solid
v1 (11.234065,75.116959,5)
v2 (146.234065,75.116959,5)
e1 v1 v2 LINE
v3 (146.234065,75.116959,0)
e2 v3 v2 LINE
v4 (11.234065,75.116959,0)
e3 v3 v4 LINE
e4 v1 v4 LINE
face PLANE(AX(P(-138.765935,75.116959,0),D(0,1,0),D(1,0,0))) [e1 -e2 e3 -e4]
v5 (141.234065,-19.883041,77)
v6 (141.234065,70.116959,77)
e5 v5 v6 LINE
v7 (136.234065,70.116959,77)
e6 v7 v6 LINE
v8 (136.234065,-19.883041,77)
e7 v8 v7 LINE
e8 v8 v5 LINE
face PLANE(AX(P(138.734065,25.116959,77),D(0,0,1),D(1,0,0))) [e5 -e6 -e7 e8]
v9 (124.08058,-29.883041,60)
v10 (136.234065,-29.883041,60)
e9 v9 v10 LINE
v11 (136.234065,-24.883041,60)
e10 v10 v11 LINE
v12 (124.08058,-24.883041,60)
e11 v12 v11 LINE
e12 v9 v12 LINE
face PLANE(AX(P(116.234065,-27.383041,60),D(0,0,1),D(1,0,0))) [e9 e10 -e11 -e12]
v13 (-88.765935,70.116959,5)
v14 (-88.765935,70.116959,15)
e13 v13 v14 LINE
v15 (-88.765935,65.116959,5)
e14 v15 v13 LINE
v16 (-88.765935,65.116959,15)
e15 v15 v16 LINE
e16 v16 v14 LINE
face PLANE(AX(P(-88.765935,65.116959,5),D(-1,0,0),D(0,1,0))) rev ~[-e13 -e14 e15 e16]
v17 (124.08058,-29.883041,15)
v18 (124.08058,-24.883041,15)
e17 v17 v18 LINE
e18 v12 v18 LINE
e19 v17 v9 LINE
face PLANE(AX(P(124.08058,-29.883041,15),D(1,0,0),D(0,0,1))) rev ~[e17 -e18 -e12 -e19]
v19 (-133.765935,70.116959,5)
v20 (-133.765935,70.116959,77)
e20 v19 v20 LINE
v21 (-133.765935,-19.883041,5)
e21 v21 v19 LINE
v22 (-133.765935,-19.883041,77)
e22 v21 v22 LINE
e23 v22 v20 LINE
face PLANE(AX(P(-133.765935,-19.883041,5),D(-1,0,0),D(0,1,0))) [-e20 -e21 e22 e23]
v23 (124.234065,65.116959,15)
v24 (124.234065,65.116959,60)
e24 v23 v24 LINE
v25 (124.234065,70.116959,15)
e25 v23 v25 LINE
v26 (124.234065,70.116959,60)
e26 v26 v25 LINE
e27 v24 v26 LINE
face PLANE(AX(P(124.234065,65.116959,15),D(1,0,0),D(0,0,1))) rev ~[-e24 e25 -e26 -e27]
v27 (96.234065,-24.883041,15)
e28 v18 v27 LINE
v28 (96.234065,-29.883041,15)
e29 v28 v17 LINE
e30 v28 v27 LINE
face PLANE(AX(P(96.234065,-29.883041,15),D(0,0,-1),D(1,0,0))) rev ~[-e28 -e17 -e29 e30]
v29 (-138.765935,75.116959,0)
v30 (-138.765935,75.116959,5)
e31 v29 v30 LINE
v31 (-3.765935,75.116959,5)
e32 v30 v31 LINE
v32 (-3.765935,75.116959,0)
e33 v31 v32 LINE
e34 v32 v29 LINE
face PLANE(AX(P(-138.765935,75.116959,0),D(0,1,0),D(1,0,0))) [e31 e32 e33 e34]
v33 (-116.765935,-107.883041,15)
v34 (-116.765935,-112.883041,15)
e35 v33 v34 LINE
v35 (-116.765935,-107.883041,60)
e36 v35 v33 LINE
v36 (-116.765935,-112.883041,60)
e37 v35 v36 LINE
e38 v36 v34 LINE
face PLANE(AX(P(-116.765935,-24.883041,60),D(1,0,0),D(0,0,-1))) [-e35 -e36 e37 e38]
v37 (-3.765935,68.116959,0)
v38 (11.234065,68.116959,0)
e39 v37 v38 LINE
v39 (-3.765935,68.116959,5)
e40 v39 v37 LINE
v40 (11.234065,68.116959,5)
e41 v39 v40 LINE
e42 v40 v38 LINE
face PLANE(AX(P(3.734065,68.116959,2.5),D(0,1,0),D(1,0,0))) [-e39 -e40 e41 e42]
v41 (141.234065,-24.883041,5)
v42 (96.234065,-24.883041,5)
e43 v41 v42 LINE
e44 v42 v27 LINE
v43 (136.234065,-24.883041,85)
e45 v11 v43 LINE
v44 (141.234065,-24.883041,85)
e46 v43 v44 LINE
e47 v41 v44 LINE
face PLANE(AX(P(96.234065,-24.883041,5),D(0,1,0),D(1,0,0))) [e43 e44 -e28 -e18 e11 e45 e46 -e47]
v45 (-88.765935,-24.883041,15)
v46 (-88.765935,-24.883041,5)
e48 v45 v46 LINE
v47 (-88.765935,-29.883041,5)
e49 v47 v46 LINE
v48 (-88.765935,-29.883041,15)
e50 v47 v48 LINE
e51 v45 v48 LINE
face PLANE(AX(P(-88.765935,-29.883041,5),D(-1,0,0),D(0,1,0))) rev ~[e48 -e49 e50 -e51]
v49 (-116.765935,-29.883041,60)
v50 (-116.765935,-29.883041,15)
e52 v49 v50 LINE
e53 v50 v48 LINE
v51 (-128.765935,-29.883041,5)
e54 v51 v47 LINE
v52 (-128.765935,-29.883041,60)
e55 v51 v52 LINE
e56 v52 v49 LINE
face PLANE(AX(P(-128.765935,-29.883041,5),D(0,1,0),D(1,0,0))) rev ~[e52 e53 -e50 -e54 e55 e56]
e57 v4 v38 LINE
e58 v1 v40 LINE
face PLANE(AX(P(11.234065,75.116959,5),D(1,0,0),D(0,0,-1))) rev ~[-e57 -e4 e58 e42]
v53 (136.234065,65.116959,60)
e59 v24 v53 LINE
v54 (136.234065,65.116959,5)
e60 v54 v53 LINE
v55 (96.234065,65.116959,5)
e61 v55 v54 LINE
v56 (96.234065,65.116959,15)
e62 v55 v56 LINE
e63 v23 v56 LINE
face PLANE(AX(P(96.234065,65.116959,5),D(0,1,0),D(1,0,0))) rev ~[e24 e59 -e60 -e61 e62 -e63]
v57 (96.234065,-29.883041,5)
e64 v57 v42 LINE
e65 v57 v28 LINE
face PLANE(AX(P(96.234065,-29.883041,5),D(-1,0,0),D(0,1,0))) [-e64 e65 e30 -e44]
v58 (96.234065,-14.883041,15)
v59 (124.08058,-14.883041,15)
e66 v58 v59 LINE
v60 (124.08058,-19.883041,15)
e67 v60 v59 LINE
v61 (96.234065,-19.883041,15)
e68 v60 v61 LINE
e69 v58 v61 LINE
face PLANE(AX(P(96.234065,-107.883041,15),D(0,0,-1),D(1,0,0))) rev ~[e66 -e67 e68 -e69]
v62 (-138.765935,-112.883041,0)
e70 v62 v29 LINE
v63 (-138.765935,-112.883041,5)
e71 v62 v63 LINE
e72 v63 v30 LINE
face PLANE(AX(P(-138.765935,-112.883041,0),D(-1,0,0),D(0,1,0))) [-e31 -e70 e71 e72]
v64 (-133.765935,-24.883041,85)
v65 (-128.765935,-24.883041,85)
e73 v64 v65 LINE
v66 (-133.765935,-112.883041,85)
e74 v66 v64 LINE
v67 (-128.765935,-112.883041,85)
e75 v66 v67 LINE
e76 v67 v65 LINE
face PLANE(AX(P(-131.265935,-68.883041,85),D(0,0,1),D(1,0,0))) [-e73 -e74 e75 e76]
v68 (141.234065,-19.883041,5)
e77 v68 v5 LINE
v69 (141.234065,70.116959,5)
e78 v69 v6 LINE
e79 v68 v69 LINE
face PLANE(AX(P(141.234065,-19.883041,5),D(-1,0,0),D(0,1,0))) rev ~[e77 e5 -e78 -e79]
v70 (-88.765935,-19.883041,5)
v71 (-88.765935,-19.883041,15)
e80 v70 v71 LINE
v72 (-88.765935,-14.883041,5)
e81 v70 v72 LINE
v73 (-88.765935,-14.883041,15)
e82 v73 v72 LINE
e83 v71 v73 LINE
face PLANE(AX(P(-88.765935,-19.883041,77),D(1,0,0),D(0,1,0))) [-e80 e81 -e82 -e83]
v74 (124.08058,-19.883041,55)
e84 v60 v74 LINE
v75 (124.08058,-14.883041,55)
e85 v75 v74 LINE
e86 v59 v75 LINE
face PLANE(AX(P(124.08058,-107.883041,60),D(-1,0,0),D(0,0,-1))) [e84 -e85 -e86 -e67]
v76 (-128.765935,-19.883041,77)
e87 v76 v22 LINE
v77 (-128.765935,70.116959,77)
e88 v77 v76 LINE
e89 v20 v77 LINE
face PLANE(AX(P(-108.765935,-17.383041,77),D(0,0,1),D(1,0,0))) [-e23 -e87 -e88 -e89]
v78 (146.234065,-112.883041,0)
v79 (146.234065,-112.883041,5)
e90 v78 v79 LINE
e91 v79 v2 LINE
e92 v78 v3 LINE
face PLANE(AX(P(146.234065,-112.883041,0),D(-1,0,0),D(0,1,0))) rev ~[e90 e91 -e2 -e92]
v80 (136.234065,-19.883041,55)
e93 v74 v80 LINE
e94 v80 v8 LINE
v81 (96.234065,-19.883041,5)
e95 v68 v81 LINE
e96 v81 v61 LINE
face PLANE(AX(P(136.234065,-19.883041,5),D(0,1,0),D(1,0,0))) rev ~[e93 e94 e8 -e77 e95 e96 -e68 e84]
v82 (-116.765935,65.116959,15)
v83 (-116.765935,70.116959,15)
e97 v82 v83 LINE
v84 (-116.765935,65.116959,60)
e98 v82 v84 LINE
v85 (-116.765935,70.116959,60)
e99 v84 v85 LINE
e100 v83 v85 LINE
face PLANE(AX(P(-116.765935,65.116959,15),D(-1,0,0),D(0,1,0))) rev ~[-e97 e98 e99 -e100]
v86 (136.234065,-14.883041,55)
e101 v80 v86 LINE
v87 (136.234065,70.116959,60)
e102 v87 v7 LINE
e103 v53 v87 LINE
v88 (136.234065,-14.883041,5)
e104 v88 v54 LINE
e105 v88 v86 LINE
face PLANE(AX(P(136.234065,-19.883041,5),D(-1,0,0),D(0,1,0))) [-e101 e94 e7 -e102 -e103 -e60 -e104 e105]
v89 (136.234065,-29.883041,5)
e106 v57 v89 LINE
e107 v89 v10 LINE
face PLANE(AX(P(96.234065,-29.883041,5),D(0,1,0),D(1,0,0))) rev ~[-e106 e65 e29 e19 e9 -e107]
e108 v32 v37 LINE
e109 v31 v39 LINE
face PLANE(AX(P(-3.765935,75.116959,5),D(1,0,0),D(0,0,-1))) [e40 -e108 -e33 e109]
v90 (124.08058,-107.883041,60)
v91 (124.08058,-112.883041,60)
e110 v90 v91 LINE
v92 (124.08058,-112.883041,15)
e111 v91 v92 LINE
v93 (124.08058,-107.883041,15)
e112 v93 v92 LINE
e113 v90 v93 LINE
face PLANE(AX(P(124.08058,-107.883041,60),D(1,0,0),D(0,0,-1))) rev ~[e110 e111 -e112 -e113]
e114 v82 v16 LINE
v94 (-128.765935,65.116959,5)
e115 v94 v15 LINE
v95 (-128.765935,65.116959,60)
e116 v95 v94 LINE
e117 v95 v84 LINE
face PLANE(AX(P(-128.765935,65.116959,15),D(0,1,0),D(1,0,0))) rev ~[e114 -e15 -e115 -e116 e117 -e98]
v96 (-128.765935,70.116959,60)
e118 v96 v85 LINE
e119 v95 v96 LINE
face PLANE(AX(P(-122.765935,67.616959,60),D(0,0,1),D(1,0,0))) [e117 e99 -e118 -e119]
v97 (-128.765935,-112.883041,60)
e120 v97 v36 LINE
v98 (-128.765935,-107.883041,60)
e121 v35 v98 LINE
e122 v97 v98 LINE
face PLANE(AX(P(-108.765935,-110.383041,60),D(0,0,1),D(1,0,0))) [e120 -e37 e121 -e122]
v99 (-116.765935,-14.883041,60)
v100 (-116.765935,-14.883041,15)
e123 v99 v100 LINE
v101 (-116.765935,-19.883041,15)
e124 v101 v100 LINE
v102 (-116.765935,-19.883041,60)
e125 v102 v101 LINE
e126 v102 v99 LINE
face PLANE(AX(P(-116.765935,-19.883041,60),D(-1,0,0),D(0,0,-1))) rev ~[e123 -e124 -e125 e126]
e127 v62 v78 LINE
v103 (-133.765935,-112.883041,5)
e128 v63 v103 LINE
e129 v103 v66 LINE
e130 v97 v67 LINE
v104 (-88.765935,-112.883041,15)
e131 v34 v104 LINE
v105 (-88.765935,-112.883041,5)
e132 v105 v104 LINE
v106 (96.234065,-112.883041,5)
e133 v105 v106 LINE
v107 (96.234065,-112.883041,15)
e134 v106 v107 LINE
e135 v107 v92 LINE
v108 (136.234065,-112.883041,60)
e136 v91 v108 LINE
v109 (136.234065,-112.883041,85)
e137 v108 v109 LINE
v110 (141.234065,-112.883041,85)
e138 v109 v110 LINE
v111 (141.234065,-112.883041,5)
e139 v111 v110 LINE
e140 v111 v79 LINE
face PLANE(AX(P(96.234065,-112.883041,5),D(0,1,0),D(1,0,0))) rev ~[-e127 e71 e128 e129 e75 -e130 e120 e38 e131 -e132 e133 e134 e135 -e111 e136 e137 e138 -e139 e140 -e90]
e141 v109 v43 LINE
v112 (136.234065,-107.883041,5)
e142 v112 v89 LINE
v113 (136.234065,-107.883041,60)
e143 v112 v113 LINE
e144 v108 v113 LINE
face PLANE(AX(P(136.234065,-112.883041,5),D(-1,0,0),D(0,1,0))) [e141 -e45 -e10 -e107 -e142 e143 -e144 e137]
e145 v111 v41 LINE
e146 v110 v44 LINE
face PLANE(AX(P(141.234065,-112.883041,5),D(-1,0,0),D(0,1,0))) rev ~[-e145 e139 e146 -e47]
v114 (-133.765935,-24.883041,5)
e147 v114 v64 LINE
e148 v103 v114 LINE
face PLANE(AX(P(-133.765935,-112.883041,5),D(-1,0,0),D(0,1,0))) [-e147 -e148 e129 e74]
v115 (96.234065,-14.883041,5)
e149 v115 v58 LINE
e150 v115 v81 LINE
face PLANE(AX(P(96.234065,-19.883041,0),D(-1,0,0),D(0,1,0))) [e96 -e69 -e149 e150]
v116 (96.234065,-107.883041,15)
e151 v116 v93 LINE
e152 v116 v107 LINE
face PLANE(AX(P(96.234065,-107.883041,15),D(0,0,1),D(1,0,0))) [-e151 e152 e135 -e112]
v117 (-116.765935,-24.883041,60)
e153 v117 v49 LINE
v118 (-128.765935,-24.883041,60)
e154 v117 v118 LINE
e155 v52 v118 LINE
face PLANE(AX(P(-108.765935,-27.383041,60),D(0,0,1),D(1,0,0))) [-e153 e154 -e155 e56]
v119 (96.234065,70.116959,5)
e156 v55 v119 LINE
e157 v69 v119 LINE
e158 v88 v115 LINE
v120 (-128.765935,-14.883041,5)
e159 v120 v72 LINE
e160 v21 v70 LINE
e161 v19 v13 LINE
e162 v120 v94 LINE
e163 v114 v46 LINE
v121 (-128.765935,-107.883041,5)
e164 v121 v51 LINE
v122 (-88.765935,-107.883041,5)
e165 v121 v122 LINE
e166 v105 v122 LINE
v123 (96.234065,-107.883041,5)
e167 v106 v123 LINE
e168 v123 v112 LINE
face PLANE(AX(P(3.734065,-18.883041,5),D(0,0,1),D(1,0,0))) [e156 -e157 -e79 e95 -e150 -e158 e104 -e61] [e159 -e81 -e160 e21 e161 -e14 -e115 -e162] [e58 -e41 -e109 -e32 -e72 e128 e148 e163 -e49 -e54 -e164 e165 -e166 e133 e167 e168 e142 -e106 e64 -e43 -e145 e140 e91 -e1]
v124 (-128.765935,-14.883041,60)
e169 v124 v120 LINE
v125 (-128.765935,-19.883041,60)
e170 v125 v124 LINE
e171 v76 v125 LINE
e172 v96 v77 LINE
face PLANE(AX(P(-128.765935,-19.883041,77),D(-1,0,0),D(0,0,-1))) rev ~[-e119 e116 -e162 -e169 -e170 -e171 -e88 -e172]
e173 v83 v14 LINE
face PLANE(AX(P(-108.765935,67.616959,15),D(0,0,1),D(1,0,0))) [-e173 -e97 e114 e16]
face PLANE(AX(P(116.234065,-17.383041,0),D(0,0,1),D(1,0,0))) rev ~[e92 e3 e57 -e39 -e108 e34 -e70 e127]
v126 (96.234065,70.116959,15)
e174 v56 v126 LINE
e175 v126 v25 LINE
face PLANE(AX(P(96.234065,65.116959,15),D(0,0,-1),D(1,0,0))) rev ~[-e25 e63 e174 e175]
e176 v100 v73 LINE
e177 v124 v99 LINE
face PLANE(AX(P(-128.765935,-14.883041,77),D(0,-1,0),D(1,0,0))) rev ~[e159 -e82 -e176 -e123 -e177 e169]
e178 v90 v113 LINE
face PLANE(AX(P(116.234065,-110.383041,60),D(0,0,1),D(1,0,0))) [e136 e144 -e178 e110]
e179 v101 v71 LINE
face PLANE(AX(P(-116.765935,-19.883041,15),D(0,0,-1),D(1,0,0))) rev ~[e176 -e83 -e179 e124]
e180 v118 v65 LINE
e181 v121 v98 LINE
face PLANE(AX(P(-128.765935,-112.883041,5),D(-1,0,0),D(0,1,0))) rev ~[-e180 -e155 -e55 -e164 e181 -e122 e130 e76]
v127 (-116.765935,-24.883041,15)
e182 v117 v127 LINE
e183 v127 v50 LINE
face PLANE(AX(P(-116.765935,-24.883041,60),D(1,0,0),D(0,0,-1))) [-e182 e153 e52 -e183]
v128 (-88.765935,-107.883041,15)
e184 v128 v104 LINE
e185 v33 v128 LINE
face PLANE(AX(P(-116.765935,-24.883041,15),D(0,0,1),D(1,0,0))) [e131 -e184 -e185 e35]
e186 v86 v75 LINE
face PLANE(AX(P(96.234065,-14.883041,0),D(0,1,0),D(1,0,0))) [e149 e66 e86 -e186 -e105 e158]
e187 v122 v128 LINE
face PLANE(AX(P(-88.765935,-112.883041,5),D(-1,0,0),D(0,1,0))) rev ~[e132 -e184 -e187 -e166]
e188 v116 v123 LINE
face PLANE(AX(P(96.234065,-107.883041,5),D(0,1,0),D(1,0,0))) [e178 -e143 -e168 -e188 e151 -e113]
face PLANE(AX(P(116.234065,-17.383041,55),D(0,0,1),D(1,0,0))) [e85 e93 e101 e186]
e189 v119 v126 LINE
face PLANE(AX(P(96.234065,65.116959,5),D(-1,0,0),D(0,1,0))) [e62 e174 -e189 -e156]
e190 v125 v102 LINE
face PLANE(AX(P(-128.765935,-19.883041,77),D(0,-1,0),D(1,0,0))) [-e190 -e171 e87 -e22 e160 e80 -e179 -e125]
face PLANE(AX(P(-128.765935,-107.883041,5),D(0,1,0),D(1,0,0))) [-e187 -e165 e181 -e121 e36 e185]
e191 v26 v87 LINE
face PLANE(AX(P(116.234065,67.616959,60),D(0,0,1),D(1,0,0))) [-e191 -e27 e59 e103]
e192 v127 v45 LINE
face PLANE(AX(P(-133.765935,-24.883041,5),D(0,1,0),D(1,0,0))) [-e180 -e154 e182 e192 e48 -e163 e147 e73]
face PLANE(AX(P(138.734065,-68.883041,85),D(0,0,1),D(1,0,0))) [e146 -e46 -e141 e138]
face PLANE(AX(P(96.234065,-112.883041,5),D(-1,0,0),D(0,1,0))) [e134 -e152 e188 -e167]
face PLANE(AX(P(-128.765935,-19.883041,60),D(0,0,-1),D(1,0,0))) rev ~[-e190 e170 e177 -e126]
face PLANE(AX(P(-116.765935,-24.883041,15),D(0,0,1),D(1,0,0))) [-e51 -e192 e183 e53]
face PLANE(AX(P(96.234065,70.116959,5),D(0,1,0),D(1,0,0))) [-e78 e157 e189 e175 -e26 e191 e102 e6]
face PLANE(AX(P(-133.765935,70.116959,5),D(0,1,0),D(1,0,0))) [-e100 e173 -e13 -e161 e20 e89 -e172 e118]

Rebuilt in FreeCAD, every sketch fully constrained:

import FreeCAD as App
import Part
import Sketcher

V = App.Vector


def add_polygon(sketch, points):
    """Adds a closed chain of lines whose ends are joined by coincident constraints."""
    first, n = sketch.GeometryCount, len(points)
    for a, b in zip(points, points[1:] + points[:1]):
        sketch.addGeometry(Part.LineSegment(App.Vector(*a, 0), App.Vector(*b, 0)), False)
    for i in range(n):
        sketch.addConstraint(Sketcher.Constraint("Coincident", first + i, 2, first + (i + 1) % n, 1))

doc = App.newDocument("Part")
body = doc.addObject("PartDesign::Body", "Body")

sketch1 = doc.addObject("Sketcher::SketchObject", "Sketch")
body.addObject(sketch1)
sketch1.AttachmentSupport = (doc.XY_Plane, [""])
sketch1.MapMode = "FlatFace"
add_polygon(sketch1, [(-139, 75), (-139, -113), (146, -113), (146, 75)])
sketch1.addConstraint(Sketcher.Constraint("Vertical", 0))
sketch1.addConstraint(Sketcher.Constraint("Horizontal", 1))
sketch1.addConstraint(Sketcher.Constraint("Vertical", 2))
sketch1.addConstraint(Sketcher.Constraint("Horizontal", 3))
sketch1.addConstraint(Sketcher.Constraint("DistanceX", 1, 1, 1, 2, 285.0))
sketch1.addConstraint(Sketcher.Constraint("DistanceY", 0, 2, 0, 1, 188.0))
sketch1.addConstraint(Sketcher.Constraint("DistanceY", 0, 2, -1, 1, 112.883041))
sketch1.addConstraint(Sketcher.Constraint("DistanceX", 0, 2, -1, 1, 138.765935))
pad1 = doc.addObject("PartDesign::Pad", "Pad")
body.addObject(pad1)
pad1.Profile = sketch1
pad1.Length = 5

sketch2 = doc.addObject("Sketcher::SketchObject", "Sketch001")
body.addObject(sketch2)
sketch2.AttachmentSupport = (doc.XY_Plane, [""])
sketch2.MapMode = "FlatFace"
sketch2.AttachmentOffset = App.Placement(V(0, 0, 5), App.Rotation())
add_polygon(sketch2, [(-134, 70), (-134, -20), (-129, -20), (-129, 70)])
sketch2.addConstraint(Sketcher.Constraint("Vertical", 0))
sketch2.addConstraint(Sketcher.Constraint("Horizontal", 1))
sketch2.addConstraint(Sketcher.Constraint("Vertical", 2))
sketch2.addConstraint(Sketcher.Constraint("Horizontal", 3))
sketch2.addConstraint(Sketcher.Constraint("DistanceX", 1, 1, 1, 2, 5.0))
sketch2.addConstraint(Sketcher.Constraint("DistanceY", 0, 2, 0, 1, 90.0))
sketch2.addConstraint(Sketcher.Constraint("DistanceY", 0, 2, -1, 1, 19.883041))
sketch2.addConstraint(Sketcher.Constraint("DistanceX", 0, 2, -1, 1, 133.765935))
pad2 = doc.addObject("PartDesign::Pad", "Pad001")
body.addObject(pad2)
pad2.Profile = sketch2
pad2.Length = 72

sketch3 = doc.addObject("Sketcher::SketchObject", "Sketch002")
body.addObject(sketch3)
sketch3.AttachmentSupport = (doc.XY_Plane, [""])
sketch3.MapMode = "FlatFace"
sketch3.AttachmentOffset = App.Placement(V(0, 0, 5), App.Rotation())
add_polygon(sketch3, [(-129, 70), (-129, 65), (-89, 65), (-89, 70)])
sketch3.addConstraint(Sketcher.Constraint("Vertical", 0))
sketch3.addConstraint(Sketcher.Constraint("Horizontal", 1))
sketch3.addConstraint(Sketcher.Constraint("Vertical", 2))
sketch3.addConstraint(Sketcher.Constraint("Horizontal", 3))
sketch3.addConstraint(Sketcher.Constraint("DistanceX", 1, 1, 1, 2, 40.0))
sketch3.addConstraint(Sketcher.Constraint("DistanceY", 0, 2, 0, 1, 5.0))
sketch3.addConstraint(Sketcher.Constraint("DistanceY", -1, 1, 0, 2, 65.116959))
sketch3.addConstraint(Sketcher.Constraint("DistanceX", 0, 2, -1, 1, 128.765935))
pad3 = doc.addObject("PartDesign::Pad", "Pad002")
body.addObject(pad3)
pad3.Profile = sketch3
pad3.Length = 10

sketch4 = doc.addObject("Sketcher::SketchObject", "Sketch003")
body.addObject(sketch4)
sketch4.AttachmentSupport = (doc.XY_Plane, [""])
sketch4.MapMode = "FlatFace"
sketch4.AttachmentOffset = App.Placement(V(0, 0, 15), App.Rotation())
add_polygon(sketch4, [(-129, 70), (-129, 65), (-117, 65), (-117, 70)])
sketch4.addConstraint(Sketcher.Constraint("Vertical", 0))
sketch4.addConstraint(Sketcher.Constraint("Horizontal", 1))
sketch4.addConstraint(Sketcher.Constraint("Vertical", 2))
sketch4.addConstraint(Sketcher.Constraint("Horizontal", 3))
sketch4.addConstraint(Sketcher.Constraint("DistanceX", 1, 1, 1, 2, 12.0))
sketch4.addConstraint(Sketcher.Constraint("DistanceY", 0, 2, 0, 1, 5.0))
sketch4.addConstraint(Sketcher.Constraint("DistanceY", -1, 1, 0, 2, 65.116959))
sketch4.addConstraint(Sketcher.Constraint("DistanceX", 0, 2, -1, 1, 128.765935))
pad4 = doc.addObject("PartDesign::Pad", "Pad003")
body.addObject(pad4)
pad4.Profile = sketch4
pad4.Length = 45

sketch5 = doc.addObject("Sketcher::SketchObject", "Sketch004")
body.addObject(sketch5)
sketch5.AttachmentSupport = (doc.XY_Plane, [""])
sketch5.MapMode = "FlatFace"
sketch5.AttachmentOffset = App.Placement(V(0, 0, 77), App.Rotation())
add_polygon(sketch5, [(-129, -15), (-129, -20), (-89, -20), (-89, -15)])
sketch5.addConstraint(Sketcher.Constraint("Vertical", 0))
sketch5.addConstraint(Sketcher.Constraint("Horizontal", 1))
sketch5.addConstraint(Sketcher.Constraint("Vertical", 2))
sketch5.addConstraint(Sketcher.Constraint("Horizontal", 3))
sketch5.addConstraint(Sketcher.Constraint("DistanceX", 1, 1, 1, 2, 40.0))
sketch5.addConstraint(Sketcher.Constraint("DistanceY", 0, 2, 0, 1, 5.0))
sketch5.addConstraint(Sketcher.Constraint("DistanceY", 0, 2, -1, 1, 19.883041))
sketch5.addConstraint(Sketcher.Constraint("DistanceX", 0, 2, -1, 1, 128.765935))
pad5 = doc.addObject("PartDesign::Pad", "Pad004")
body.addObject(pad5)
pad5.Profile = sketch5
pad5.Length = 72
pad5.Reversed = True

sketch6 = doc.addObject("Sketcher::SketchObject", "Sketch005")
body.addObject(sketch6)
sketch6.AttachmentSupport = (doc.XZ_Plane, [""])
sketch6.MapMode = "FlatFace"
sketch6.AttachmentOffset = App.Placement(V(0, 0, 19.883041), App.Rotation())
add_polygon(sketch6, [(-117, 15), (-89, 15), (-89, 77), (-129, 77), (-129, 60), (-117, 60)])
sketch6.addConstraint(Sketcher.Constraint("Horizontal", 0))
sketch6.addConstraint(Sketcher.Constraint("Vertical", 1))
sketch6.addConstraint(Sketcher.Constraint("Horizontal", 2))
sketch6.addConstraint(Sketcher.Constraint("Vertical", 3))
sketch6.addConstraint(Sketcher.Constraint("Horizontal", 4))
sketch6.addConstraint(Sketcher.Constraint("Vertical", 5))
sketch6.addConstraint(Sketcher.Constraint("DistanceX", 0, 1, 0, 2, 28.0))
sketch6.addConstraint(Sketcher.Constraint("DistanceX", 2, 2, 2, 1, 40.0))
sketch6.addConstraint(Sketcher.Constraint("DistanceY", 1, 1, 1, 2, 62.0))
sketch6.addConstraint(Sketcher.Constraint("DistanceY", 3, 2, 3, 1, 17.0))
sketch6.addConstraint(Sketcher.Constraint("DistanceY", -1, 1, 0, 2, 15.0))
sketch6.addConstraint(Sketcher.Constraint("DistanceX", 0, 2, -1, 1, 88.765935))
pocket1 = doc.addObject("PartDesign::Pocket", "Pocket")
body.addObject(pocket1)
pocket1.Profile = sketch6
pocket1.Type = "ThroughAll"
pocket1.Midplane = True

sketch7 = doc.addObject("Sketcher::SketchObject", "Sketch006")
body.addObject(sketch7)
sketch7.AttachmentSupport = (doc.XY_Plane, [""])
sketch7.MapMode = "FlatFace"
sketch7.AttachmentOffset = App.Placement(V(0, 0, 5), App.Rotation())
add_polygon(sketch7, [(136, 70), (136, -20), (141, -20), (141, 70)])
sketch7.addConstraint(Sketcher.Constraint("Vertical", 0))
sketch7.addConstraint(Sketcher.Constraint("Horizontal", 1))
sketch7.addConstraint(Sketcher.Constraint("Vertical", 2))
sketch7.addConstraint(Sketcher.Constraint("Horizontal", 3))
sketch7.addConstraint(Sketcher.Constraint("DistanceX", 1, 1, 1, 2, 5.0))
sketch7.addConstraint(Sketcher.Constraint("DistanceY", 0, 2, 0, 1, 90.0))
sketch7.addConstraint(Sketcher.Constraint("DistanceY", 0, 2, -1, 1, 19.883041))
sketch7.addConstraint(Sketcher.Constraint("DistanceX", -1, 1, 0, 2, 136.234065))
pad6 = doc.addObject("PartDesign::Pad", "Pad005")
body.addObject(pad6)
pad6.Profile = sketch7
pad6.Length = 72

sketch8 = doc.addObject("Sketcher::SketchObject", "Sketch007")
body.addObject(sketch8)
sketch8.AttachmentSupport = (doc.XY_Plane, [""])
sketch8.MapMode = "FlatFace"
sketch8.AttachmentOffset = App.Placement(V(0, 0, 5), App.Rotation())
add_polygon(sketch8, [(96, 70), (96, 65), (136, 65), (136, 70)])
sketch8.addConstraint(Sketcher.Constraint("Vertical", 0))
sketch8.addConstraint(Sketcher.Constraint("Horizontal", 1))
sketch8.addConstraint(Sketcher.Constraint("Vertical", 2))
sketch8.addConstraint(Sketcher.Constraint("Horizontal", 3))
sketch8.addConstraint(Sketcher.Constraint("DistanceX", 1, 1, 1, 2, 40.0))
sketch8.addConstraint(Sketcher.Constraint("DistanceY", 0, 2, 0, 1, 5.0))
sketch8.addConstraint(Sketcher.Constraint("DistanceY", -1, 1, 0, 2, 65.116959))
sketch8.addConstraint(Sketcher.Constraint("DistanceX", -1, 1, 0, 2, 96.234065))
pad7 = doc.addObject("PartDesign::Pad", "Pad006")
body.addObject(pad7)
pad7.Profile = sketch8
pad7.Length = 55

sketch9 = doc.addObject("Sketcher::SketchObject", "Sketch008")
body.addObject(sketch9)
sketch9.AttachmentSupport = (doc.XZ_Plane, [""])
sketch9.MapMode = "FlatFace"
sketch9.AttachmentOffset = App.Placement(V(0, 0, -65.116959), App.Rotation())
add_polygon(sketch9, [(96, 60), (96, 15), (124, 15), (124, 60)])
sketch9.addConstraint(Sketcher.Constraint("Vertical", 0))
sketch9.addConstraint(Sketcher.Constraint("Horizontal", 1))
sketch9.addConstraint(Sketcher.Constraint("Vertical", 2))
sketch9.addConstraint(Sketcher.Constraint("Horizontal", 3))
sketch9.addConstraint(Sketcher.Constraint("DistanceX", 1, 1, 1, 2, 28.0))
sketch9.addConstraint(Sketcher.Constraint("DistanceY", 0, 2, 0, 1, 45.0))
sketch9.addConstraint(Sketcher.Constraint("DistanceY", -1, 1, 0, 2, 15.0))
sketch9.addConstraint(Sketcher.Constraint("DistanceX", -1, 1, 0, 2, 96.234065))
pocket2 = doc.addObject("PartDesign::Pocket", "Pocket001")
body.addObject(pocket2)
pocket2.Profile = sketch9
pocket2.Type = "ThroughAll"
pocket2.Midplane = True

sketch10 = doc.addObject("Sketcher::SketchObject", "Sketch009")
body.addObject(sketch10)
sketch10.AttachmentSupport = (doc.XY_Plane, [""])
sketch10.MapMode = "FlatFace"
add_polygon(sketch10, [(96, -15), (96, -20), (136, -20), (136, -15)])
sketch10.addConstraint(Sketcher.Constraint("Vertical", 0))
sketch10.addConstraint(Sketcher.Constraint("Horizontal", 1))
sketch10.addConstraint(Sketcher.Constraint("Vertical", 2))
sketch10.addConstraint(Sketcher.Constraint("Horizontal", 3))
sketch10.addConstraint(Sketcher.Constraint("DistanceX", 1, 1, 1, 2, 40.0))
sketch10.addConstraint(Sketcher.Constraint("DistanceY", 0, 2, 0, 1, 5.0))
sketch10.addConstraint(Sketcher.Constraint("DistanceY", 0, 2, -1, 1, 19.883041))
sketch10.addConstraint(Sketcher.Constraint("DistanceX", -1, 1, 0, 2, 96.234065))
pad8 = doc.addObject("PartDesign::Pad", "Pad007")
body.addObject(pad8)
pad8.Profile = sketch10
pad8.Length = 55

sketch11 = doc.addObject("Sketcher::SketchObject", "Sketch010")
body.addObject(sketch11)
sketch11.AttachmentSupport = (doc.XZ_Plane, [""])
sketch11.MapMode = "FlatFace"
sketch11.AttachmentOffset = App.Placement(V(0, 0, 14.883041), App.Rotation())
add_polygon(sketch11, [(96, 15), (96, 55), (124, 55), (124, 15)])
sketch11.addConstraint(Sketcher.Constraint("Vertical", 0))
sketch11.addConstraint(Sketcher.Constraint("Horizontal", 1))
sketch11.addConstraint(Sketcher.Constraint("Vertical", 2))
sketch11.addConstraint(Sketcher.Constraint("Horizontal", 3))
sketch11.addConstraint(Sketcher.Constraint("DistanceY", 0, 1, 0, 2, 40.0))
sketch11.addConstraint(Sketcher.Constraint("DistanceY", -1, 1, 0, 2, 55.0))
sketch11.addConstraint(Sketcher.Constraint("DistanceX", 1, 1, 1, 2, 27.761977))
sketch11.addConstraint(Sketcher.Constraint("DistanceX", -1, 1, 1, 2, 123.996042))
pocket3 = doc.addObject("PartDesign::Pocket", "Pocket002")
body.addObject(pocket3)
pocket3.Profile = sketch11
pocket3.Type = "ThroughAll"
pocket3.Midplane = True

sketch12 = doc.addObject("Sketcher::SketchObject", "Sketch011")
body.addObject(sketch12)
sketch12.AttachmentSupport = (doc.XY_Plane, [""])
sketch12.MapMode = "FlatFace"
sketch12.AttachmentOffset = App.Placement(V(0, 0, 5), App.Rotation())
add_polygon(sketch12, [(-134, -25), (-134, -113), (-129, -113), (-129, -25)])
sketch12.addConstraint(Sketcher.Constraint("Vertical", 0))
sketch12.addConstraint(Sketcher.Constraint("Horizontal", 1))
sketch12.addConstraint(Sketcher.Constraint("Vertical", 2))
sketch12.addConstraint(Sketcher.Constraint("Horizontal", 3))
sketch12.addConstraint(Sketcher.Constraint("DistanceX", 1, 1, 1, 2, 5.0))
sketch12.addConstraint(Sketcher.Constraint("DistanceY", 0, 2, 0, 1, 88.0))
sketch12.addConstraint(Sketcher.Constraint("DistanceY", 0, 2, -1, 1, 112.883041))
sketch12.addConstraint(Sketcher.Constraint("DistanceX", 0, 2, -1, 1, 133.765935))
pad9 = doc.addObject("PartDesign::Pad", "Pad008")
body.addObject(pad9)
pad9.Profile = sketch12
pad9.Length = 80

sketch13 = doc.addObject("Sketcher::SketchObject", "Sketch012")
body.addObject(sketch13)
sketch13.AttachmentSupport = (doc.XY_Plane, [""])
sketch13.MapMode = "FlatFace"
sketch13.AttachmentOffset = App.Placement(V(0, 0, 5), App.Rotation())
add_polygon(sketch13, [(-129, -108), (-129, -113), (-89, -113), (-89, -108)])
sketch13.addConstraint(Sketcher.Constraint("Vertical", 0))
sketch13.addConstraint(Sketcher.Constraint("Horizontal", 1))
sketch13.addConstraint(Sketcher.Constraint("Vertical", 2))
sketch13.addConstraint(Sketcher.Constraint("Horizontal", 3))
sketch13.addConstraint(Sketcher.Constraint("DistanceX", 1, 1, 1, 2, 40.0))
sketch13.addConstraint(Sketcher.Constraint("DistanceY", 0, 2, 0, 1, 5.0))
sketch13.addConstraint(Sketcher.Constraint("DistanceY", 0, 2, -1, 1, 112.883041))
sketch13.addConstraint(Sketcher.Constraint("DistanceX", 0, 2, -1, 1, 128.765935))
pad10 = doc.addObject("PartDesign::Pad", "Pad009")
body.addObject(pad10)
pad10.Profile = sketch13
pad10.Length = 55

sketch14 = doc.addObject("Sketcher::SketchObject", "Sketch013")
body.addObject(sketch14)
sketch14.AttachmentSupport = (doc.XZ_Plane, [""])
sketch14.MapMode = "FlatFace"
sketch14.AttachmentOffset = App.Placement(V(0, 0, 107.883041), App.Rotation())
add_polygon(sketch14, [(-117, 16), (-117, 60), (-89, 60), (-89, 16)])
sketch14.addConstraint(Sketcher.Constraint("Vertical", 0))
sketch14.addConstraint(Sketcher.Constraint("Horizontal", 1))
sketch14.addConstraint(Sketcher.Constraint("Vertical", 2))
sketch14.addConstraint(Sketcher.Constraint("Horizontal", 3))
sketch14.addConstraint(Sketcher.Constraint("DistanceY", -1, 1, 0, 2, 60.0))
sketch14.addConstraint(Sketcher.Constraint("DistanceX", 1, 1, 1, 2, 27.891782))
sketch14.addConstraint(Sketcher.Constraint("DistanceY", 0, 1, 0, 2, 44.373166))
sketch14.addConstraint(Sketcher.Constraint("DistanceX", 0, 2, -1, 1, 116.657718))
pocket4 = doc.addObject("PartDesign::Pocket", "Pocket003")
body.addObject(pocket4)
pocket4.Profile = sketch14
pocket4.Type = "ThroughAll"
pocket4.Midplane = True

sketch15 = doc.addObject("Sketcher::SketchObject", "Sketch014")
body.addObject(sketch15)
sketch15.AttachmentSupport = (doc.XY_Plane, [""])
sketch15.MapMode = "FlatFace"
sketch15.AttachmentOffset = App.Placement(V(0, 0, 5), App.Rotation())
add_polygon(sketch15, [(-129, -25), (-129, -30), (-89, -30), (-89, -25)])
sketch15.addConstraint(Sketcher.Constraint("Vertical", 0))
sketch15.addConstraint(Sketcher.Constraint("Horizontal", 1))
sketch15.addConstraint(Sketcher.Constraint("Vertical", 2))
sketch15.addConstraint(Sketcher.Constraint("Horizontal", 3))
sketch15.addConstraint(Sketcher.Constraint("DistanceX", 1, 1, 1, 2, 40.0))
sketch15.addConstraint(Sketcher.Constraint("DistanceY", 0, 2, 0, 1, 5.0))
sketch15.addConstraint(Sketcher.Constraint("DistanceY", 0, 2, -1, 1, 29.883041))
sketch15.addConstraint(Sketcher.Constraint("DistanceX", 0, 2, -1, 1, 128.765935))
pad11 = doc.addObject("PartDesign::Pad", "Pad010")
body.addObject(pad11)
pad11.Profile = sketch15
pad11.Length = 55

sketch16 = doc.addObject("Sketcher::SketchObject", "Sketch015")
body.addObject(sketch16)
sketch16.AttachmentSupport = (doc.XZ_Plane, [""])
sketch16.MapMode = "FlatFace"
sketch16.AttachmentOffset = App.Placement(V(0, 0, 24.883041), App.Rotation())
add_polygon(sketch16, [(-117, 15), (-117, 60), (-89, 60), (-89, 15)])
sketch16.addConstraint(Sketcher.Constraint("Vertical", 0))
sketch16.addConstraint(Sketcher.Constraint("Horizontal", 1))
sketch16.addConstraint(Sketcher.Constraint("Vertical", 2))
sketch16.addConstraint(Sketcher.Constraint("Horizontal", 3))
sketch16.addConstraint(Sketcher.Constraint("DistanceX", 1, 1, 1, 2, 28.0))
sketch16.addConstraint(Sketcher.Constraint("DistanceY", 0, 1, 0, 2, 45.0))
sketch16.addConstraint(Sketcher.Constraint("DistanceY", -1, 1, 0, 2, 60.0))
sketch16.addConstraint(Sketcher.Constraint("DistanceX", 0, 2, -1, 1, 116.765935))
pocket5 = doc.addObject("PartDesign::Pocket", "Pocket004")
body.addObject(pocket5)
pocket5.Profile = sketch16
pocket5.Type = "ThroughAll"
pocket5.Midplane = True

sketch17 = doc.addObject("Sketcher::SketchObject", "Sketch016")
body.addObject(sketch17)
sketch17.AttachmentSupport = (doc.XY_Plane, [""])
sketch17.MapMode = "FlatFace"
sketch17.AttachmentOffset = App.Placement(V(0, 0, 5), App.Rotation())
add_polygon(sketch17, [(136, -25), (136, -113), (141, -113), (141, -25)])
sketch17.addConstraint(Sketcher.Constraint("Vertical", 0))
sketch17.addConstraint(Sketcher.Constraint("Horizontal", 1))
sketch17.addConstraint(Sketcher.Constraint("Vertical", 2))
sketch17.addConstraint(Sketcher.Constraint("Horizontal", 3))
sketch17.addConstraint(Sketcher.Constraint("DistanceX", 1, 1, 1, 2, 5.0))
sketch17.addConstraint(Sketcher.Constraint("DistanceY", 0, 2, 0, 1, 88.0))
sketch17.addConstraint(Sketcher.Constraint("DistanceY", 0, 2, -1, 1, 112.883041))
sketch17.addConstraint(Sketcher.Constraint("DistanceX", -1, 1, 0, 2, 136.234065))
pad12 = doc.addObject("PartDesign::Pad", "Pad011")
body.addObject(pad12)
pad12.Profile = sketch17
pad12.Length = 80

sketch18 = doc.addObject("Sketcher::SketchObject", "Sketch017")
body.addObject(sketch18)
sketch18.AttachmentSupport = (doc.XY_Plane, [""])
sketch18.MapMode = "FlatFace"
sketch18.AttachmentOffset = App.Placement(V(0, 0, 5), App.Rotation())
add_polygon(sketch18, [(96, -108), (96, -113), (136, -113), (136, -108)])
sketch18.addConstraint(Sketcher.Constraint("Vertical", 0))
sketch18.addConstraint(Sketcher.Constraint("Horizontal", 1))
sketch18.addConstraint(Sketcher.Constraint("Vertical", 2))
sketch18.addConstraint(Sketcher.Constraint("Horizontal", 3))
sketch18.addConstraint(Sketcher.Constraint("DistanceX", 1, 1, 1, 2, 40.0))
sketch18.addConstraint(Sketcher.Constraint("DistanceY", 0, 2, 0, 1, 5.0))
sketch18.addConstraint(Sketcher.Constraint("DistanceY", 0, 2, -1, 1, 112.883041))
sketch18.addConstraint(Sketcher.Constraint("DistanceX", -1, 1, 0, 2, 96.234065))
pad13 = doc.addObject("PartDesign::Pad", "Pad012")
body.addObject(pad13)
pad13.Profile = sketch18
pad13.Length = 55

sketch19 = doc.addObject("Sketcher::SketchObject", "Sketch018")
body.addObject(sketch19)
sketch19.AttachmentSupport = (doc.XZ_Plane, [""])
sketch19.MapMode = "FlatFace"
sketch19.AttachmentOffset = App.Placement(V(0, 0, 107.883041), App.Rotation())
add_polygon(sketch19, [(96, 15), (96, 60), (124, 60), (124, 15)])
sketch19.addConstraint(Sketcher.Constraint("Vertical", 0))
sketch19.addConstraint(Sketcher.Constraint("Horizontal", 1))
sketch19.addConstraint(Sketcher.Constraint("Vertical", 2))
sketch19.addConstraint(Sketcher.Constraint("Horizontal", 3))
sketch19.addConstraint(Sketcher.Constraint("DistanceY", 0, 1, 0, 2, 45.0))
sketch19.addConstraint(Sketcher.Constraint("DistanceY", -1, 1, 0, 2, 60.0))
sketch19.addConstraint(Sketcher.Constraint("DistanceX", 1, 1, 1, 2, 27.846515))
sketch19.addConstraint(Sketcher.Constraint("DistanceX", -1, 1, 1, 2, 124.08058))
pocket6 = doc.addObject("PartDesign::Pocket", "Pocket005")
body.addObject(pocket6)
pocket6.Profile = sketch19
pocket6.Type = "ThroughAll"
pocket6.Midplane = True

sketch20 = doc.addObject("Sketcher::SketchObject", "Sketch019")
body.addObject(sketch20)
sketch20.AttachmentSupport = (doc.XY_Plane, [""])
sketch20.MapMode = "FlatFace"
sketch20.AttachmentOffset = App.Placement(V(0, 0, 5), App.Rotation())
add_polygon(sketch20, [(96, -25), (96, -30), (136, -30), (136, -25)])
sketch20.addConstraint(Sketcher.Constraint("Vertical", 0))
sketch20.addConstraint(Sketcher.Constraint("Horizontal", 1))
sketch20.addConstraint(Sketcher.Constraint("Vertical", 2))
sketch20.addConstraint(Sketcher.Constraint("Horizontal", 3))
sketch20.addConstraint(Sketcher.Constraint("DistanceX", 1, 1, 1, 2, 40.0))
sketch20.addConstraint(Sketcher.Constraint("DistanceY", 0, 2, 0, 1, 5.0))
sketch20.addConstraint(Sketcher.Constraint("DistanceY", 0, 2, -1, 1, 29.883041))
sketch20.addConstraint(Sketcher.Constraint("DistanceX", -1, 1, 0, 2, 96.234065))
pad14 = doc.addObject("PartDesign::Pad", "Pad013")
body.addObject(pad14)
pad14.Profile = sketch20
pad14.Length = 55

sketch21 = doc.addObject("Sketcher::SketchObject", "Sketch020")
body.addObject(sketch21)
sketch21.AttachmentSupport = (doc.XZ_Plane, [""])
sketch21.MapMode = "FlatFace"
sketch21.AttachmentOffset = App.Placement(V(0, 0, 29.883041), App.Rotation())
add_polygon(sketch21, [(96, 60), (96, 15), (124, 15), (124, 60)])
sketch21.addConstraint(Sketcher.Constraint("Vertical", 0))
sketch21.addConstraint(Sketcher.Constraint("Horizontal", 1))
sketch21.addConstraint(Sketcher.Constraint("Vertical", 2))
sketch21.addConstraint(Sketcher.Constraint("Horizontal", 3))
sketch21.addConstraint(Sketcher.Constraint("DistanceY", 0, 2, 0, 1, 45.0))
sketch21.addConstraint(Sketcher.Constraint("DistanceY", -1, 1, 0, 2, 15.0))
sketch21.addConstraint(Sketcher.Constraint("DistanceX", 1, 1, 1, 2, 27.846515))
sketch21.addConstraint(Sketcher.Constraint("DistanceX", -1, 1, 1, 2, 124.08058))
pocket7 = doc.addObject("PartDesign::Pocket", "Pocket006")
body.addObject(pocket7)
pocket7.Profile = sketch21
pocket7.Type = "ThroughAll"
pocket7.Midplane = True

sketch22 = doc.addObject("Sketcher::SketchObject", "Sketch021")
body.addObject(sketch22)
sketch22.AttachmentSupport = (doc.XZ_Plane, [""])
sketch22.MapMode = "FlatFace"
sketch22.AttachmentOffset = App.Placement(V(0, 0, -75.116959), App.Rotation())
add_polygon(sketch22, [(-4, 0), (-4, 5), (11, 5), (11, 0)])
sketch22.addConstraint(Sketcher.Constraint("Vertical", 0))
sketch22.addConstraint(Sketcher.Constraint("Horizontal", 1))
sketch22.addConstraint(Sketcher.Constraint("Vertical", 2))
sketch22.addConstraint(Sketcher.Constraint("Horizontal", 3))
sketch22.addConstraint(Sketcher.Constraint("PointOnObject", 2, 2, -1))
sketch22.addConstraint(Sketcher.Constraint("DistanceX", 1, 1, 1, 2, 15.0))
sketch22.addConstraint(Sketcher.Constraint("DistanceY", 0, 1, 0, 2, 5.0))
sketch22.addConstraint(Sketcher.Constraint("DistanceX", 0, 2, -1, 1, 3.765935))
pocket8 = doc.addObject("PartDesign::Pocket", "Pocket007")
body.addObject(pocket8)
pocket8.Profile = sketch22
pocket8.Type = "TwoLengths"
pocket8.Length = 1
pocket8.Length2 = 7

doc.recompute()
